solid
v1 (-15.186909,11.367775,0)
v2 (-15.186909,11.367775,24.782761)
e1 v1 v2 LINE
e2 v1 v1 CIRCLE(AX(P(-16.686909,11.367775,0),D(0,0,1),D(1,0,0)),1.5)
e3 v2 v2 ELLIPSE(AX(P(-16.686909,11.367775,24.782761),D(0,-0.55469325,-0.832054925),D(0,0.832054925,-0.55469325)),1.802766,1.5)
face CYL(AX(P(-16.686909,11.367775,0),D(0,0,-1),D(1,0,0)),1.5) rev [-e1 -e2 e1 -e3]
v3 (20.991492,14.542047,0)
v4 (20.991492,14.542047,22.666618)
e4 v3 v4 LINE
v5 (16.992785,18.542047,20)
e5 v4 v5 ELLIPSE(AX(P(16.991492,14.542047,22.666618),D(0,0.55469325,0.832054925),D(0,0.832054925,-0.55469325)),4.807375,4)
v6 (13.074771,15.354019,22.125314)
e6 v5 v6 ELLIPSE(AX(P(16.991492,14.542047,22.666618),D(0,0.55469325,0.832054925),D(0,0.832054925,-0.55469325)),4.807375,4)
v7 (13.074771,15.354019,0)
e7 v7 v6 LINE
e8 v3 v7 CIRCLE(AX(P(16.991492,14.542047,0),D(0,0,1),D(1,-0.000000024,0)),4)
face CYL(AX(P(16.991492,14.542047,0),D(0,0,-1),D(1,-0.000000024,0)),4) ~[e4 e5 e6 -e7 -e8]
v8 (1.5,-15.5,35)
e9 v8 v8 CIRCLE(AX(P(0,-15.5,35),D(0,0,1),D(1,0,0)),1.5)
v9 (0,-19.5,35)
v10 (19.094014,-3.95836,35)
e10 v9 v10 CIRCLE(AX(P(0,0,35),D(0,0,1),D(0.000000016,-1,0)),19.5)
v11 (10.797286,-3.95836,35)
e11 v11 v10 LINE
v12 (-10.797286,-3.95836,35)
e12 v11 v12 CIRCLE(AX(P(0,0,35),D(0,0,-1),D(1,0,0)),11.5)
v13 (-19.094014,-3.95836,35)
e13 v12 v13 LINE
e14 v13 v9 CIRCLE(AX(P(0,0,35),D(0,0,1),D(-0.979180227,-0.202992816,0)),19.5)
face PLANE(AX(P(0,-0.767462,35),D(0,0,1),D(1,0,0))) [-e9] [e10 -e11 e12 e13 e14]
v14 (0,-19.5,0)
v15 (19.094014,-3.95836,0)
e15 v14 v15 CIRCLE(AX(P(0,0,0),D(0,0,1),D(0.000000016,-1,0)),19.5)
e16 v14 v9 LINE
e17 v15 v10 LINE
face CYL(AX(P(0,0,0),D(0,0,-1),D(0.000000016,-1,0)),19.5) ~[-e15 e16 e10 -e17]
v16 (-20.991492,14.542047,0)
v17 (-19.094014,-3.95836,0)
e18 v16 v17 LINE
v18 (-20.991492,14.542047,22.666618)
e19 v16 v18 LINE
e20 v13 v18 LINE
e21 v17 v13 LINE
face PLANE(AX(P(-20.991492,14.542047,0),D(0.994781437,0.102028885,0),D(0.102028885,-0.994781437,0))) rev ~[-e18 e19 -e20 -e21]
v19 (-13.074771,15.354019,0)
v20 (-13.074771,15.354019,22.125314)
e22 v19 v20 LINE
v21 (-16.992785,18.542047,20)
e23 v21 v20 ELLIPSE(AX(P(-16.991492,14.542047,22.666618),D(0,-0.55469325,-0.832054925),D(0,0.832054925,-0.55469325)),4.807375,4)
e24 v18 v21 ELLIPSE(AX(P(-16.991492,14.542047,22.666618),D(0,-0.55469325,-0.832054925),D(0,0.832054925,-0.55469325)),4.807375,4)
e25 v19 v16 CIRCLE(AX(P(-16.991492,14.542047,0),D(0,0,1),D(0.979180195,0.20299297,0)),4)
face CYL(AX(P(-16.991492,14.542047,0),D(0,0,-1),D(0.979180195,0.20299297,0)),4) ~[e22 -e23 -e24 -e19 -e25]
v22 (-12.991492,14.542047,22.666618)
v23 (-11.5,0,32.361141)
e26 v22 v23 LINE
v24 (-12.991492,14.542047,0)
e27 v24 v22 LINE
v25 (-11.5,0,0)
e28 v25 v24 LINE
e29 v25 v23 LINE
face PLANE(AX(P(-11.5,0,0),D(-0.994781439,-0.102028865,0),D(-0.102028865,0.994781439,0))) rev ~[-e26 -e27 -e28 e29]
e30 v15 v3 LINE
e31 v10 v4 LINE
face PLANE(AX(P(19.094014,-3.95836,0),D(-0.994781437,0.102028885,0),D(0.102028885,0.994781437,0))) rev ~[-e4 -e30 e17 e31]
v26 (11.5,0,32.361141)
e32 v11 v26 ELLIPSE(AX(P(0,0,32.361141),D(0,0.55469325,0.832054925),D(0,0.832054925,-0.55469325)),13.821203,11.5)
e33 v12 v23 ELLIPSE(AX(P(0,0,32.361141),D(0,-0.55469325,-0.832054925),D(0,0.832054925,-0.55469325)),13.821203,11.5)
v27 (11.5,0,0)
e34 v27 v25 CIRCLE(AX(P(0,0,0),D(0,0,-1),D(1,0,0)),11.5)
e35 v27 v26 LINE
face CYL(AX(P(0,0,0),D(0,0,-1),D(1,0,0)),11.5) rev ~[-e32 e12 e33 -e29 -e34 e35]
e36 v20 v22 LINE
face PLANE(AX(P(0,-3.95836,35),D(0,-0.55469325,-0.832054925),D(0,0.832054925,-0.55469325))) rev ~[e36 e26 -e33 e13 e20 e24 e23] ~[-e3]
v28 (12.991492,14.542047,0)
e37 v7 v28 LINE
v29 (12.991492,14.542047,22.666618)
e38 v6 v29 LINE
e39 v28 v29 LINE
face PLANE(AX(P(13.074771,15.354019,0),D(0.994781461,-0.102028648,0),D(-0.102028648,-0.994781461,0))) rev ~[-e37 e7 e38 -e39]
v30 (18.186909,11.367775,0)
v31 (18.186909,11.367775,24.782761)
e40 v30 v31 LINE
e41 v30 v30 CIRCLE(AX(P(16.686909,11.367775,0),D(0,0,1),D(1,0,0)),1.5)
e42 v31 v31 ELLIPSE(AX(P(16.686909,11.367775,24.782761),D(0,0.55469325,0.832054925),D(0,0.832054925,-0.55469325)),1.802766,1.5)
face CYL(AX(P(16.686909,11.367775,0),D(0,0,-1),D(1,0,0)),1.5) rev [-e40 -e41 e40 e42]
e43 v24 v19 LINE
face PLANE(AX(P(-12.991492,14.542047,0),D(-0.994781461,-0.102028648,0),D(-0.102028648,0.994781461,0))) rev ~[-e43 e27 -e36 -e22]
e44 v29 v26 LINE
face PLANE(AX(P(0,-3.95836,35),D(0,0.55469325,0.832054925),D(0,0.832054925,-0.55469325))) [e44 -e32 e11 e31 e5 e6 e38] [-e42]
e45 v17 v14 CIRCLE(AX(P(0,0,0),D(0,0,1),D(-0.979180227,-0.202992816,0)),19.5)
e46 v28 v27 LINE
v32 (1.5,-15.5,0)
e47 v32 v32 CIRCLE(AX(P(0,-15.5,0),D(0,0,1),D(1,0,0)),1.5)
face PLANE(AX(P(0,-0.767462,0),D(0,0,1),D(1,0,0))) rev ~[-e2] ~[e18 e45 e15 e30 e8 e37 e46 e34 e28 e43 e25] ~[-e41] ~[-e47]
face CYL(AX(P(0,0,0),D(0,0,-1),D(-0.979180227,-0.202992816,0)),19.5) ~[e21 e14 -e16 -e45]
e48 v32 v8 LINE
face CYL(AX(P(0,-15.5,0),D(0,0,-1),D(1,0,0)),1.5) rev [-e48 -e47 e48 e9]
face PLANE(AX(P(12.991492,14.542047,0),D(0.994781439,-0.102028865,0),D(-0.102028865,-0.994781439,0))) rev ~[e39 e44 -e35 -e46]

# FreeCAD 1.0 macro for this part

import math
import FreeCAD as App
import Part
import Sketcher

V = App.Vector


def add_polygon(sketch, points):
    """Adds a closed chain of lines whose ends are joined by coincident constraints."""
    first, n = sketch.GeometryCount, len(points)
    for a, b in zip(points, points[1:] + points[:1]):
        sketch.addGeometry(Part.LineSegment(App.Vector(*a, 0), App.Vector(*b, 0)), False)
    for i in range(n):
        sketch.addConstraint(Sketcher.Constraint("Coincident", first + i, 2, first + (i + 1) % n, 1))

doc = App.newDocument("Part")
body = doc.addObject("PartDesign::Body", "Body")

# Sketch on XY plane
sketch1 = body.newObject("Sketcher::SketchObject", "Sketch")
sketch1.AttachmentSupport = (doc.getObject("XY_Plane"), [""])
sketch1.MapMode = "FlatFace"
sketch1.addGeometry(Part.LineSegment(V(12.991492, 14.542047, 0), V(11.5, 0, 0)), False)
sketch1.addGeometry(Part.ArcOfCircle(Part.Circle(V(0, 0, 0), V(0, 0, 1), 11.5), math.radians(180), math.radians(360)), False)
sketch1.addGeometry(Part.LineSegment(V(-11.5, 0, 0), V(-12.991492, 14.542047, 0)), False)
sketch1.addGeometry(Part.LineSegment(V(-12.991492, 14.542047, 0), V(-13.074771, 15.354019, 0)), False)
sketch1.addGeometry(Part.ArcOfCircle(Part.Circle(V(-16.991492, 14.542047, 0), V(0, 0, 1), 4), math.radians(11.712035), math.radians(180.000001)), False)
sketch1.addGeometry(Part.LineSegment(V(-20.991492, 14.542047, 0), V(-19.094014, -3.95836, 0)), False)
sketch1.addGeometry(Part.ArcOfCircle(Part.Circle(V(0, 0, 0), V(0, 0, 1), 19.5), math.radians(-168.287974), math.radians(-90.000001)), False)
sketch1.addGeometry(Part.ArcOfCircle(Part.Circle(V(0, 0, 0), V(0, 0, 1), 19.5), math.radians(-89.999999), math.radians(-11.712026)), False)
sketch1.addGeometry(Part.LineSegment(V(19.094014, -3.95836, 0), V(20.991492, 14.542047, 0)), False)
sketch1.addGeometry(Part.ArcOfCircle(Part.Circle(V(16.991492, 14.542047, 0), V(0, 0, 1), 4), math.radians(-0.000001), math.radians(168.287965)), False)
sketch1.addGeometry(Part.LineSegment(V(13.074771, 15.354019, 0), V(12.991492, 14.542047, 0)), False)
sketch1.addGeometry(Part.Circle(V(0, -15.5, 0), V(0, 0, 1), 1.5), False)
sketch1.addGeometry(Part.Circle(V(-16.686909, 11.367775, 0), V(0, 0, 1), 1.5), False)
sketch1.addGeometry(Part.Circle(V(16.686909, 11.367775, 0), V(0, 0, 1), 1.5), False)
sketch1.addConstraint(Sketcher.Constraint("Coincident", 0, 2, 1, 2))
sketch1.addConstraint(Sketcher.Constraint("Coincident", 1, 1, 2, 1))
sketch1.addConstraint(Sketcher.Constraint("Coincident", 2, 2, 3, 1))
sketch1.addConstraint(Sketcher.Constraint("Coincident", 3, 2, 4, 1))
sketch1.addConstraint(Sketcher.Constraint("Coincident", 4, 2, 5, 1))
sketch1.addConstraint(Sketcher.Constraint("Coincident", 5, 2, 6, 1))
sketch1.addConstraint(Sketcher.Constraint("Tangent", 6, 2, 7, 1))
sketch1.addConstraint(Sketcher.Constraint("Coincident", 7, 2, 8, 1))
sketch1.addConstraint(Sketcher.Constraint("Coincident", 8, 2, 9, 1))
sketch1.addConstraint(Sketcher.Constraint("Coincident", 9, 2, 10, 1))
sketch1.addConstraint(Sketcher.Constraint("Coincident", 10, 2, 0, 1))
sketch1.addConstraint(Sketcher.Constraint("Coincident", 1, 3, -1, 1))
sketch1.addConstraint(Sketcher.Constraint("Coincident", 6, 3, -1, 1))
sketch1.addConstraint(Sketcher.Constraint("Equal", 6, 7))
sketch1.addConstraint(Sketcher.Constraint("Equal", 4, 9))
sketch1.addConstraint(Sketcher.Constraint("Equal", 11, 12))
sketch1.addConstraint(Sketcher.Constraint("Equal", 12, 13))
sketch1.addConstraint(Sketcher.Constraint("Symmetric", 4, 3, 9, 3, -2))
sketch1.addConstraint(Sketcher.Constraint("Symmetric", 12, 3, 13, 3, -2))
sketch1.addConstraint(Sketcher.Constraint("Symmetric", 2, 2, 10, 2, -2))
sketch1.addConstraint(Sketcher.Constraint("PointOnObject", 11, 3, -2))
sketch1.addConstraint(Sketcher.Constraint("PointOnObject", 0, 2, -1))
sketch1.addConstraint(Sketcher.Constraint("PointOnObject", 1, 1, -1))
sketch1.addConstraint(Sketcher.Constraint("PointOnObject", 6, 2, -2))
sketch1.addConstraint(Sketcher.Constraint("Parallel", 2, 3))
sketch1.addConstraint(Sketcher.Constraint("Parallel", 3, 5))
sketch1.addConstraint(Sketcher.Constraint("Parallel", 0, 8))
sketch1.addConstraint(Sketcher.Constraint("Parallel", 8, 10))
sketch1.addConstraint(Sketcher.Constraint("Horizontal", 9, 3, 2, 2))
sketch1.addConstraint(Sketcher.Constraint("Horizontal", 2, 2, 4, 2))
sketch1.addConstraint(Sketcher.Constraint("Horizontal", 5, 2, 7, 2))
sketch1.addConstraint(Sketcher.Constraint("Diameter", 11, 3.0))
sketch1.addConstraint(Sketcher.Constraint("Radius", 4, 4.0))
sketch1.addConstraint(Sketcher.Constraint("Radius", 1, 11.5))
sketch1.addConstraint(Sketcher.Constraint("Radius", 6, 19.5))
sketch1.addConstraint(Sketcher.Constraint("DistanceX", 4, 3, 2, 2, 4.0))
sketch1.addConstraint(Sketcher.Constraint("DistanceY", 6, 2, 11, 3, 4.0))
sketch1.addConstraint(Sketcher.Constraint("Distance", 3, 0.816232))
sketch1.addConstraint(Sketcher.Constraint("Distance", 5, 18.597459))
sketch1.addConstraint(Sketcher.Constraint("DistanceX", 12, 3, -1, 1, 16.686909))
sketch1.addConstraint(Sketcher.Constraint("DistanceY", -1, 1, 12, 3, 11.367775))
pad1 = body.newObject("PartDesign::Pad", "Pad")
pad1.Profile = sketch1
pad1.Length = 35

# Sketch on YZ plane
sketch2 = body.newObject("Sketcher::SketchObject", "Sketch001")
sketch2.AttachmentSupport = (doc.getObject("YZ_Plane"), [""])
sketch2.MapMode = "FlatFace"
add_polygon(sketch2, [(18.542047, 35), (-3.95836, 35), (18.542047, 20)])  # lines 0-2
sketch2.addConstraint(Sketcher.Constraint("Horizontal", 0))
sketch2.addConstraint(Sketcher.Constraint("Vertical", 2))
sketch2.addConstraint(Sketcher.Constraint("DistanceY", 2, 1, 2, 2, 15.0))
sketch2.addConstraint(Sketcher.Constraint("DistanceY", -1, 1, 0, 2, 35.0))
sketch2.addConstraint(Sketcher.Constraint("DistanceX", 0, 2, 0, 1, 22.500407))
sketch2.addConstraint(Sketcher.Constraint("DistanceX", 0, 2, -1, 1, 3.95836))
pocket1 = body.newObject("PartDesign::Pocket", "Pocket")
pocket1.Profile = sketch2
pocket1.Type = "ThroughAll"
pocket1.Midplane = True

doc.recompute()
